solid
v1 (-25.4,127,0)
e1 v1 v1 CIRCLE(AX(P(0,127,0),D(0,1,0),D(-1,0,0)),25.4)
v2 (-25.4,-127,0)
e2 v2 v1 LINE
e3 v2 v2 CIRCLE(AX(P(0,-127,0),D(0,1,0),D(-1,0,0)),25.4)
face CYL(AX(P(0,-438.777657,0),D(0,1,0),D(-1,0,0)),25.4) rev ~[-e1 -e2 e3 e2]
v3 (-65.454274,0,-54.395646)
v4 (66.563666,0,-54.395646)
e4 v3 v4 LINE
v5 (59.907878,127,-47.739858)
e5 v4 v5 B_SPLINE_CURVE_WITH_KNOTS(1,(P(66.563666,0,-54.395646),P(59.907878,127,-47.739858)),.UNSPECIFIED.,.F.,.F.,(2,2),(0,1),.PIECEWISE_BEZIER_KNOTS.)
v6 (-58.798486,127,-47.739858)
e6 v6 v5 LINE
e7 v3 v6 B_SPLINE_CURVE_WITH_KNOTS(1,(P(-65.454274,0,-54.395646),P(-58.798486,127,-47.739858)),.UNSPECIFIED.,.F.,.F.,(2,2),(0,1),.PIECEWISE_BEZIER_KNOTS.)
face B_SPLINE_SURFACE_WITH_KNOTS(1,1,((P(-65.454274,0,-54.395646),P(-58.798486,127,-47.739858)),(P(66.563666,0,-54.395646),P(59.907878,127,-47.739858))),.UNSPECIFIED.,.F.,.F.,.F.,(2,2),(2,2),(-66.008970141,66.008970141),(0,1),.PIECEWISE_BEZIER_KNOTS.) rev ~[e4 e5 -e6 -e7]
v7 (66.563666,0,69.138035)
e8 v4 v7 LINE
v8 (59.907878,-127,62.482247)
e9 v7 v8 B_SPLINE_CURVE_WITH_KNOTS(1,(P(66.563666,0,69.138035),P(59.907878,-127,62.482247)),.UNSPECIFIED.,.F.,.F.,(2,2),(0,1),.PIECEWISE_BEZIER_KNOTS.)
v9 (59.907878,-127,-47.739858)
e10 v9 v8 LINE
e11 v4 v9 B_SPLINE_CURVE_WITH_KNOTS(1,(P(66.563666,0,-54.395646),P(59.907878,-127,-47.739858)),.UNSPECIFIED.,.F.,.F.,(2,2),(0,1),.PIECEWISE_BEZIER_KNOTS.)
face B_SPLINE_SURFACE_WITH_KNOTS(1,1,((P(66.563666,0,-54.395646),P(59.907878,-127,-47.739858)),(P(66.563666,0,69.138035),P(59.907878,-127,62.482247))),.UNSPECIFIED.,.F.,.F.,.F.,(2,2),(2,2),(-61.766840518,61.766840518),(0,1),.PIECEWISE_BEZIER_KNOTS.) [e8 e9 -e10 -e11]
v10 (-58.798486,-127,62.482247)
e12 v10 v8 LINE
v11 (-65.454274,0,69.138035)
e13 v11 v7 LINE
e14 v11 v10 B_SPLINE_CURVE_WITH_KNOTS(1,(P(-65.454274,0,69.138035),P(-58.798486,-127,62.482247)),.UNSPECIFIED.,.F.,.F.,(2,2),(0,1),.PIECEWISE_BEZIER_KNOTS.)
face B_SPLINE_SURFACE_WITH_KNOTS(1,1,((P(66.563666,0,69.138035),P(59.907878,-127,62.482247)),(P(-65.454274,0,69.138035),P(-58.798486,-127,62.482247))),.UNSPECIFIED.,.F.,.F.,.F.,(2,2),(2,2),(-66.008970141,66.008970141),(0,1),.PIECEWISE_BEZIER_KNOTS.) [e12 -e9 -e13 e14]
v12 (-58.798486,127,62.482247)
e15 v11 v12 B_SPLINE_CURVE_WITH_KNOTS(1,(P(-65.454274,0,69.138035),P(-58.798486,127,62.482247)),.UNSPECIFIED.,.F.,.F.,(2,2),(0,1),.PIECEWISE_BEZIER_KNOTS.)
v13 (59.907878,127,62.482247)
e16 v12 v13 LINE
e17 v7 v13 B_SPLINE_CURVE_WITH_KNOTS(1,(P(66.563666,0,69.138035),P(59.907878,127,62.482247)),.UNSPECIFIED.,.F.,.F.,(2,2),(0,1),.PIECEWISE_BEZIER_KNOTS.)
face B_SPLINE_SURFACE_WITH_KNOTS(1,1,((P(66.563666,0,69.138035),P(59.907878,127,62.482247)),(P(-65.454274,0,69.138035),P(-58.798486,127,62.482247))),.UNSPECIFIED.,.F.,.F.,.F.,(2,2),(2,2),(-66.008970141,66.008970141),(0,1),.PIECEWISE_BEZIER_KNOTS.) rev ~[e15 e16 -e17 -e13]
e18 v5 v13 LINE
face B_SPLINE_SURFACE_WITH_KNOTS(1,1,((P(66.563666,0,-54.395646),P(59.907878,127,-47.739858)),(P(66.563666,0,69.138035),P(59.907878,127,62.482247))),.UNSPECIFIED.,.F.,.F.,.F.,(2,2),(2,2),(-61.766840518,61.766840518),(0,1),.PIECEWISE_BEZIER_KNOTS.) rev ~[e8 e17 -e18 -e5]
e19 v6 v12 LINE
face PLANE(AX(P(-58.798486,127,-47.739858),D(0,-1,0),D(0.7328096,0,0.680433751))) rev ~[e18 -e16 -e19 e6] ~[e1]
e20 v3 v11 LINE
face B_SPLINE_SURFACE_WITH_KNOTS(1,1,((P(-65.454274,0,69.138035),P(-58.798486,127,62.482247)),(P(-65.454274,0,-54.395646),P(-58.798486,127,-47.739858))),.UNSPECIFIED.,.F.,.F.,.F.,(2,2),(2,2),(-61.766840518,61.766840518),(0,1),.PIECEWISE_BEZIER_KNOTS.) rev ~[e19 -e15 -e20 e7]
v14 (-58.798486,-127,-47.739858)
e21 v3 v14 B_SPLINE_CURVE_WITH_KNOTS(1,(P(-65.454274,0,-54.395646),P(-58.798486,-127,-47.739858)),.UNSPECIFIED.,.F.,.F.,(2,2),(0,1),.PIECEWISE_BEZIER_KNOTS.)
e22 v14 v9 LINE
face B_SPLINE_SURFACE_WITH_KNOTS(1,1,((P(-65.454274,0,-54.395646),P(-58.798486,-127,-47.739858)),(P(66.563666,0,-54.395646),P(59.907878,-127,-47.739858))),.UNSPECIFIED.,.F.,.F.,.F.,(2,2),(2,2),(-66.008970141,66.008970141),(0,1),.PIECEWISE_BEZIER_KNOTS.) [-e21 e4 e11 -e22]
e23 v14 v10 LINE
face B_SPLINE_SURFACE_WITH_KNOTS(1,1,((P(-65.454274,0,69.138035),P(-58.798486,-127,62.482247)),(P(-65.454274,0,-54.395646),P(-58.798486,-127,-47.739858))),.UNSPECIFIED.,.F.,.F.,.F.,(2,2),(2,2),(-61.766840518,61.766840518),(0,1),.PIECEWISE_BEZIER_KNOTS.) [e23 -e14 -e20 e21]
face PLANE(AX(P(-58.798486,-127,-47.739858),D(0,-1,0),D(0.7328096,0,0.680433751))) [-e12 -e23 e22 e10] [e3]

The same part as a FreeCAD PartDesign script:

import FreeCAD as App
import Part
import Sketcher
Q = App.Units.Quantity

doc = App.newDocument("Part")
body = doc.addObject("PartDesign::Body", "Body")

# Sketch on XZ plane
sketch1 = body.newObject("Sketcher::SketchObject", "Sketch")
sketch1.AttachmentSupport = (doc.getObject("XZ_Plane"), [""])
sketch1.MapMode = "FlatFace"
sketch1.addGeometry([
    Part.LineSegment(App.Vector(-65, 69, 0), App.Vector(-65, -54, 0)),
    Part.LineSegment(App.Vector(-65, -54, 0), App.Vector(67, -54, 0)),
    Part.LineSegment(App.Vector(67, -54, 0), App.Vector(67, 69, 0)),
    Part.LineSegment(App.Vector(67, 69, 0), App.Vector(-65, 69, 0)),
], False)
sketch1.addConstraint([
    Sketcher.Constraint("Coincident", 0, 2, 1, 1),
    Sketcher.Constraint("Coincident", 1, 2, 2, 1),
    Sketcher.Constraint("Coincident", 2, 2, 3, 1),
    Sketcher.Constraint("Coincident", 3, 2, 0, 1),
    Sketcher.Constraint("Vertical", 0),
    Sketcher.Constraint("Horizontal", 1),
    Sketcher.Constraint("Vertical", 2),
    Sketcher.Constraint("Horizontal", 3),
    Sketcher.Constraint("DistanceX", 1, 1, 1, 2, 132.01794),
    Sketcher.Constraint("DistanceY", 0, 2, 0, 1, 123.533681),
    Sketcher.Constraint("DistanceX", 0, 2, -1, 1, 65.454274),
    Sketcher.Constraint("DistanceY", 0, 2, -1, 1, 54.395646),
])
pad1 = body.newObject("PartDesign::Pad", "Pad")
pad1.Profile = sketch1
pad1.Length = Q("5 in")
pad1.TaperAngle = -3
pad2 = body.newObject("PartDesign::Pad", "Pad001")
pad2.Profile = sketch1
pad2.Length = Q("5 in")
pad2.Reversed = True
pad2.TaperAngle = -3

# Sketch on XZ plane
sketch2 = body.newObject("Sketcher::SketchObject", "Sketch001")
sketch2.AttachmentSupport = (doc.getObject("XZ_Plane"), [""])
sketch2.MapMode = "FlatFace"
sketch2.AttachmentOffset = App.Placement(App.Vector(0, 0, 5 * 25.4), App.Rotation())
sketch2.addGeometry(Part.Circle(App.Vector(0, 0, 0), App.Vector(0, 0, 1), 25), False)
sketch2.addConstraint([
    Sketcher.Constraint("Coincident", 0, 3, -1, 1),
    Sketcher.Constraint("Diameter", 0, Q("2 in")),
])
doc.recompute()
hole = body.newObject("PartDesign::Hole", "Hole")
hole.Profile = sketch2
hole.ThreadType = "None"
hole.Diameter = Q("2 in")
hole.DepthType = "ThroughAll"

doc.recompute()
